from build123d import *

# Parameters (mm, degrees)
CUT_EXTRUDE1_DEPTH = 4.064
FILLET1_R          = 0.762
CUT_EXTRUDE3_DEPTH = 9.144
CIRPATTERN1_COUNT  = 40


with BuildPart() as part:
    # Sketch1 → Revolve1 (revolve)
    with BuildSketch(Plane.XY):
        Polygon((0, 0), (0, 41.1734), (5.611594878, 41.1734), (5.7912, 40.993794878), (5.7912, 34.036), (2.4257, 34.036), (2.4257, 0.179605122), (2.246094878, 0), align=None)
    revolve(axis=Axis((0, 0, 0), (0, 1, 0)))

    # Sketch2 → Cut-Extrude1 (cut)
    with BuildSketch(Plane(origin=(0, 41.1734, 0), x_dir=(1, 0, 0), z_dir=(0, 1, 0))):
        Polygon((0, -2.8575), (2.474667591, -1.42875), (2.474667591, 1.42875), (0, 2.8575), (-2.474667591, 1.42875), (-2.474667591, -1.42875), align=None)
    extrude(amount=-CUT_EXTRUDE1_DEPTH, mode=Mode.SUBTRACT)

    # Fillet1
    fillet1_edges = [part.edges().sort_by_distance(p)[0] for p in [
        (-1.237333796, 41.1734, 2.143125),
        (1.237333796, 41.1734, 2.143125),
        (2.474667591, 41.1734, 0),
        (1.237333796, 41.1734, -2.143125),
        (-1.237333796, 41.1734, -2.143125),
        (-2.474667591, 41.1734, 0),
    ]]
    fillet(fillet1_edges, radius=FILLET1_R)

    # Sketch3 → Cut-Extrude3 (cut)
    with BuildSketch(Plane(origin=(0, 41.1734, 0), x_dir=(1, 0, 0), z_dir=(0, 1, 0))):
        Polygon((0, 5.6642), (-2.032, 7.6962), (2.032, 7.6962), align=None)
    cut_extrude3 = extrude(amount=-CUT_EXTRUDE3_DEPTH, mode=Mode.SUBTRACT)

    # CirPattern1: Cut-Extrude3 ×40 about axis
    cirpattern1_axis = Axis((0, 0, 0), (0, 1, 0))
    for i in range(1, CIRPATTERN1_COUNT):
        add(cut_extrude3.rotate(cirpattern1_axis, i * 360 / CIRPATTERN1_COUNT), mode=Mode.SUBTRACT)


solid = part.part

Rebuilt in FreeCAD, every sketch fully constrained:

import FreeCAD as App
import Part
import Sketcher

V = App.Vector
Q = App.Units.Quantity


def edges_at(feature, points):
    """Names of the edges that pass closest to the given points."""
    edges = feature.Shape.Edges
    near = lambda p: min(range(len(edges)), key=lambda i: edges[i].distToShape(Part.Vertex(*p))[0])
    return sorted({f"Edge{near(p) + 1}" for p in points})


def add_polygon(sketch, points):
    """Adds a closed chain of lines whose ends are joined by coincident constraints."""
    first, n = sketch.GeometryCount, len(points)
    for a, b in zip(points, points[1:] + points[:1]):
        sketch.addGeometry(Part.LineSegment(App.Vector(*a, 0), App.Vector(*b, 0)), False)
    for i in range(n):
        sketch.addConstraint(Sketcher.Constraint("Coincident", first + i, 2, first + (i + 1) % n, 1))

doc = App.newDocument("Part")
params = doc.addObject("Spreadsheet::Sheet", "Params")
for row, (alias, value) in enumerate([
    ("sketch1_length", "0.01 in"),
    ("sketch1_height", "1.621 in"),
    ("revolution_angle", "360 deg"),
    ("pocket1_length", "0.16 in"),
    ("fillet_radius", "0.03 in"),
    ("sketch3_width", "0.16 in"),
    ("pocket2_length", "0.36 in"),
], start=1):
    params.set(f"A{row}", alias)
    params.set(f"B{row}", "=" + value)
    params.setAlias(f"B{row}", alias)

body = doc.addObject("PartDesign::Body", "Body")

# Sketch on XY plane
sketch1 = doc.addObject("Sketcher::SketchObject", "Sketch")
body.addObject(sketch1)
sketch1.AttachmentSupport = (doc.XY_Plane, [""])
sketch1.MapMode = "FlatFace"
add_polygon(sketch1, [(0, 41.17), (0, 0), (2.25, 0), (2.43, 0.18), (2.43, 34.04), (5.79, 34.04), (5.79, 40.99), (5.61, 41.17)])  # lines 0-7
sketch1.addConstraint([
    Sketcher.Constraint("Vertical", 0),
    Sketcher.Constraint("Horizontal", 1),
    Sketcher.Constraint("Vertical", 3),
    Sketcher.Constraint("Horizontal", 4),
    Sketcher.Constraint("Vertical", 5),
    Sketcher.Constraint("Horizontal", 7),
    Sketcher.Constraint("Coincident", 0, 2, -1, 1),
    Sketcher.Constraint("Perpendicular", 2, 6),
    Sketcher.Constraint("Equal", 2, 6),
    Sketcher.Constraint("Angle", 2, Q("45 deg")),
    Sketcher.Constraint("Distance", 2, Q("0.01 in")),
    Sketcher.Constraint("DistanceY", 0, 2, 0, 1, Q("1.621 in")),
    Sketcher.Constraint("DistanceY", -1, 1, 3, 2, Q("1.34 in")),
    Sketcher.Constraint("DistanceX", 4, 1, 4, 2, Q("0.1325 in")),
    Sketcher.Constraint("DistanceX", -1, 1, 4, 2, Q("0.228 in")),
])
sketch1.setExpression("Constraints[18]", "Params.sketch1_length")
sketch1.setExpression("Constraints[19]", "Params.sketch1_height")
revolution = doc.addObject("PartDesign::Revolution", "Revolution")
body.addObject(revolution)
revolution.Profile = sketch1
revolution.ReferenceAxis = (sketch1, ["V_Axis"])
revolution.setExpression("Angle", "Params.revolution_angle")

# Sketch on XZ plane
sketch2 = doc.addObject("Sketcher::SketchObject", "Sketch001")
body.addObject(sketch2)
sketch2.AttachmentSupport = (doc.XZ_Plane, [""])
sketch2.MapMode = "FlatFace"
sketch2.AttachmentOffset = App.Placement(V(0, 0, -1.621 * 25.4), App.Rotation())
add_polygon(sketch2, [(0, 2.9), (2.5, 1.4), (2.5, -1.4), (0, -2.9), (-2.5, -1.4), (-2.5, 1.4)])  # lines 0-5
sketch2.addConstraint([
    Sketcher.Constraint("Vertical", 1),
    Sketcher.Constraint("Vertical", 4),
    Sketcher.Constraint("Symmetric", 0, 2, 3, 2, -1, 1),
    Sketcher.Constraint("Symmetric", 2, 2, 5, 2, -1, 1),
    Sketcher.Constraint("PointOnObject", 2, 2, -2),
    Sketcher.Constraint("Parallel", 2, 5),
    Sketcher.Constraint("Horizontal", 1, 2, 3, 2),
    Sketcher.Constraint("Angle", 0, Q("-30 deg")),
    Sketcher.Constraint("DistanceY", 1, 2, 1, 1, Q("0.1125 in")),
    Sketcher.Constraint("DistanceY", 2, 2, 5, 2, Q("0.225 in")),
])
pocket1 = doc.addObject("PartDesign::Pocket", "Pocket")
body.addObject(pocket1)
pocket1.Profile = sketch2
pocket1.setExpression("Length", "Params.pocket1_length")
pocket1.Reversed = True
doc.recompute()

fillet = doc.addObject("PartDesign::Fillet", "Fillet")
body.addObject(fillet)
fillet.Base = (pocket1, edges_at(pocket1, [
    (-1.237, 41.173, 2.143),
    (1.237, 41.173, 2.143),
    (2.475, 41.173, 0),
    (1.237, 41.173, -2.143),
    (-1.237, 41.173, -2.143),
    (-2.475, 41.173, 0),
]))
fillet.setExpression("Radius", "Params.fillet_radius")

# Sketch on XZ plane
sketch3 = doc.addObject("Sketcher::SketchObject", "Sketch002")
body.addObject(sketch3)
sketch3.AttachmentSupport = (doc.XZ_Plane, [""])
sketch3.MapMode = "FlatFace"
sketch3.AttachmentOffset = App.Placement(V(0, 0, -1.621 * 25.4), App.Rotation())
add_polygon(sketch3, [(-2, -7.7), (0, -5.7), (2, -7.7)])  # lines 0-2
sketch3.addConstraint([
    Sketcher.Constraint("Horizontal", 2),
    Sketcher.Constraint("PointOnObject", 0, 2, -2),
    Sketcher.Constraint("Perpendicular", 0, 1),
    Sketcher.Constraint("Equal", 0, 1),
    Sketcher.Constraint("DistanceX", 2, 2, 2, 1, Q("0.16 in")),
    Sketcher.Constraint("DistanceY", 0, 2, -1, 1, Q("0.223 in")),
])
sketch3.setExpression("Constraints[7]", "Params.sketch3_width")
pocket2 = doc.addObject("PartDesign::Pocket", "Pocket001")
body.addObject(pocket2)
pocket2.Profile = sketch3
pocket2.setExpression("Length", "Params.pocket2_length")
pocket2.Reversed = True
doc.recompute()

polarpattern = doc.addObject("PartDesign::PolarPattern", "PolarPattern")
body.addObject(polarpattern)
polarpattern.Originals = [pocket2]
polarpattern.Axis = (doc.Y_Axis, [""])
polarpattern.Angle = 360
polarpattern.Occurrences = 40
body.Tip = polarpattern

doc.recompute()
